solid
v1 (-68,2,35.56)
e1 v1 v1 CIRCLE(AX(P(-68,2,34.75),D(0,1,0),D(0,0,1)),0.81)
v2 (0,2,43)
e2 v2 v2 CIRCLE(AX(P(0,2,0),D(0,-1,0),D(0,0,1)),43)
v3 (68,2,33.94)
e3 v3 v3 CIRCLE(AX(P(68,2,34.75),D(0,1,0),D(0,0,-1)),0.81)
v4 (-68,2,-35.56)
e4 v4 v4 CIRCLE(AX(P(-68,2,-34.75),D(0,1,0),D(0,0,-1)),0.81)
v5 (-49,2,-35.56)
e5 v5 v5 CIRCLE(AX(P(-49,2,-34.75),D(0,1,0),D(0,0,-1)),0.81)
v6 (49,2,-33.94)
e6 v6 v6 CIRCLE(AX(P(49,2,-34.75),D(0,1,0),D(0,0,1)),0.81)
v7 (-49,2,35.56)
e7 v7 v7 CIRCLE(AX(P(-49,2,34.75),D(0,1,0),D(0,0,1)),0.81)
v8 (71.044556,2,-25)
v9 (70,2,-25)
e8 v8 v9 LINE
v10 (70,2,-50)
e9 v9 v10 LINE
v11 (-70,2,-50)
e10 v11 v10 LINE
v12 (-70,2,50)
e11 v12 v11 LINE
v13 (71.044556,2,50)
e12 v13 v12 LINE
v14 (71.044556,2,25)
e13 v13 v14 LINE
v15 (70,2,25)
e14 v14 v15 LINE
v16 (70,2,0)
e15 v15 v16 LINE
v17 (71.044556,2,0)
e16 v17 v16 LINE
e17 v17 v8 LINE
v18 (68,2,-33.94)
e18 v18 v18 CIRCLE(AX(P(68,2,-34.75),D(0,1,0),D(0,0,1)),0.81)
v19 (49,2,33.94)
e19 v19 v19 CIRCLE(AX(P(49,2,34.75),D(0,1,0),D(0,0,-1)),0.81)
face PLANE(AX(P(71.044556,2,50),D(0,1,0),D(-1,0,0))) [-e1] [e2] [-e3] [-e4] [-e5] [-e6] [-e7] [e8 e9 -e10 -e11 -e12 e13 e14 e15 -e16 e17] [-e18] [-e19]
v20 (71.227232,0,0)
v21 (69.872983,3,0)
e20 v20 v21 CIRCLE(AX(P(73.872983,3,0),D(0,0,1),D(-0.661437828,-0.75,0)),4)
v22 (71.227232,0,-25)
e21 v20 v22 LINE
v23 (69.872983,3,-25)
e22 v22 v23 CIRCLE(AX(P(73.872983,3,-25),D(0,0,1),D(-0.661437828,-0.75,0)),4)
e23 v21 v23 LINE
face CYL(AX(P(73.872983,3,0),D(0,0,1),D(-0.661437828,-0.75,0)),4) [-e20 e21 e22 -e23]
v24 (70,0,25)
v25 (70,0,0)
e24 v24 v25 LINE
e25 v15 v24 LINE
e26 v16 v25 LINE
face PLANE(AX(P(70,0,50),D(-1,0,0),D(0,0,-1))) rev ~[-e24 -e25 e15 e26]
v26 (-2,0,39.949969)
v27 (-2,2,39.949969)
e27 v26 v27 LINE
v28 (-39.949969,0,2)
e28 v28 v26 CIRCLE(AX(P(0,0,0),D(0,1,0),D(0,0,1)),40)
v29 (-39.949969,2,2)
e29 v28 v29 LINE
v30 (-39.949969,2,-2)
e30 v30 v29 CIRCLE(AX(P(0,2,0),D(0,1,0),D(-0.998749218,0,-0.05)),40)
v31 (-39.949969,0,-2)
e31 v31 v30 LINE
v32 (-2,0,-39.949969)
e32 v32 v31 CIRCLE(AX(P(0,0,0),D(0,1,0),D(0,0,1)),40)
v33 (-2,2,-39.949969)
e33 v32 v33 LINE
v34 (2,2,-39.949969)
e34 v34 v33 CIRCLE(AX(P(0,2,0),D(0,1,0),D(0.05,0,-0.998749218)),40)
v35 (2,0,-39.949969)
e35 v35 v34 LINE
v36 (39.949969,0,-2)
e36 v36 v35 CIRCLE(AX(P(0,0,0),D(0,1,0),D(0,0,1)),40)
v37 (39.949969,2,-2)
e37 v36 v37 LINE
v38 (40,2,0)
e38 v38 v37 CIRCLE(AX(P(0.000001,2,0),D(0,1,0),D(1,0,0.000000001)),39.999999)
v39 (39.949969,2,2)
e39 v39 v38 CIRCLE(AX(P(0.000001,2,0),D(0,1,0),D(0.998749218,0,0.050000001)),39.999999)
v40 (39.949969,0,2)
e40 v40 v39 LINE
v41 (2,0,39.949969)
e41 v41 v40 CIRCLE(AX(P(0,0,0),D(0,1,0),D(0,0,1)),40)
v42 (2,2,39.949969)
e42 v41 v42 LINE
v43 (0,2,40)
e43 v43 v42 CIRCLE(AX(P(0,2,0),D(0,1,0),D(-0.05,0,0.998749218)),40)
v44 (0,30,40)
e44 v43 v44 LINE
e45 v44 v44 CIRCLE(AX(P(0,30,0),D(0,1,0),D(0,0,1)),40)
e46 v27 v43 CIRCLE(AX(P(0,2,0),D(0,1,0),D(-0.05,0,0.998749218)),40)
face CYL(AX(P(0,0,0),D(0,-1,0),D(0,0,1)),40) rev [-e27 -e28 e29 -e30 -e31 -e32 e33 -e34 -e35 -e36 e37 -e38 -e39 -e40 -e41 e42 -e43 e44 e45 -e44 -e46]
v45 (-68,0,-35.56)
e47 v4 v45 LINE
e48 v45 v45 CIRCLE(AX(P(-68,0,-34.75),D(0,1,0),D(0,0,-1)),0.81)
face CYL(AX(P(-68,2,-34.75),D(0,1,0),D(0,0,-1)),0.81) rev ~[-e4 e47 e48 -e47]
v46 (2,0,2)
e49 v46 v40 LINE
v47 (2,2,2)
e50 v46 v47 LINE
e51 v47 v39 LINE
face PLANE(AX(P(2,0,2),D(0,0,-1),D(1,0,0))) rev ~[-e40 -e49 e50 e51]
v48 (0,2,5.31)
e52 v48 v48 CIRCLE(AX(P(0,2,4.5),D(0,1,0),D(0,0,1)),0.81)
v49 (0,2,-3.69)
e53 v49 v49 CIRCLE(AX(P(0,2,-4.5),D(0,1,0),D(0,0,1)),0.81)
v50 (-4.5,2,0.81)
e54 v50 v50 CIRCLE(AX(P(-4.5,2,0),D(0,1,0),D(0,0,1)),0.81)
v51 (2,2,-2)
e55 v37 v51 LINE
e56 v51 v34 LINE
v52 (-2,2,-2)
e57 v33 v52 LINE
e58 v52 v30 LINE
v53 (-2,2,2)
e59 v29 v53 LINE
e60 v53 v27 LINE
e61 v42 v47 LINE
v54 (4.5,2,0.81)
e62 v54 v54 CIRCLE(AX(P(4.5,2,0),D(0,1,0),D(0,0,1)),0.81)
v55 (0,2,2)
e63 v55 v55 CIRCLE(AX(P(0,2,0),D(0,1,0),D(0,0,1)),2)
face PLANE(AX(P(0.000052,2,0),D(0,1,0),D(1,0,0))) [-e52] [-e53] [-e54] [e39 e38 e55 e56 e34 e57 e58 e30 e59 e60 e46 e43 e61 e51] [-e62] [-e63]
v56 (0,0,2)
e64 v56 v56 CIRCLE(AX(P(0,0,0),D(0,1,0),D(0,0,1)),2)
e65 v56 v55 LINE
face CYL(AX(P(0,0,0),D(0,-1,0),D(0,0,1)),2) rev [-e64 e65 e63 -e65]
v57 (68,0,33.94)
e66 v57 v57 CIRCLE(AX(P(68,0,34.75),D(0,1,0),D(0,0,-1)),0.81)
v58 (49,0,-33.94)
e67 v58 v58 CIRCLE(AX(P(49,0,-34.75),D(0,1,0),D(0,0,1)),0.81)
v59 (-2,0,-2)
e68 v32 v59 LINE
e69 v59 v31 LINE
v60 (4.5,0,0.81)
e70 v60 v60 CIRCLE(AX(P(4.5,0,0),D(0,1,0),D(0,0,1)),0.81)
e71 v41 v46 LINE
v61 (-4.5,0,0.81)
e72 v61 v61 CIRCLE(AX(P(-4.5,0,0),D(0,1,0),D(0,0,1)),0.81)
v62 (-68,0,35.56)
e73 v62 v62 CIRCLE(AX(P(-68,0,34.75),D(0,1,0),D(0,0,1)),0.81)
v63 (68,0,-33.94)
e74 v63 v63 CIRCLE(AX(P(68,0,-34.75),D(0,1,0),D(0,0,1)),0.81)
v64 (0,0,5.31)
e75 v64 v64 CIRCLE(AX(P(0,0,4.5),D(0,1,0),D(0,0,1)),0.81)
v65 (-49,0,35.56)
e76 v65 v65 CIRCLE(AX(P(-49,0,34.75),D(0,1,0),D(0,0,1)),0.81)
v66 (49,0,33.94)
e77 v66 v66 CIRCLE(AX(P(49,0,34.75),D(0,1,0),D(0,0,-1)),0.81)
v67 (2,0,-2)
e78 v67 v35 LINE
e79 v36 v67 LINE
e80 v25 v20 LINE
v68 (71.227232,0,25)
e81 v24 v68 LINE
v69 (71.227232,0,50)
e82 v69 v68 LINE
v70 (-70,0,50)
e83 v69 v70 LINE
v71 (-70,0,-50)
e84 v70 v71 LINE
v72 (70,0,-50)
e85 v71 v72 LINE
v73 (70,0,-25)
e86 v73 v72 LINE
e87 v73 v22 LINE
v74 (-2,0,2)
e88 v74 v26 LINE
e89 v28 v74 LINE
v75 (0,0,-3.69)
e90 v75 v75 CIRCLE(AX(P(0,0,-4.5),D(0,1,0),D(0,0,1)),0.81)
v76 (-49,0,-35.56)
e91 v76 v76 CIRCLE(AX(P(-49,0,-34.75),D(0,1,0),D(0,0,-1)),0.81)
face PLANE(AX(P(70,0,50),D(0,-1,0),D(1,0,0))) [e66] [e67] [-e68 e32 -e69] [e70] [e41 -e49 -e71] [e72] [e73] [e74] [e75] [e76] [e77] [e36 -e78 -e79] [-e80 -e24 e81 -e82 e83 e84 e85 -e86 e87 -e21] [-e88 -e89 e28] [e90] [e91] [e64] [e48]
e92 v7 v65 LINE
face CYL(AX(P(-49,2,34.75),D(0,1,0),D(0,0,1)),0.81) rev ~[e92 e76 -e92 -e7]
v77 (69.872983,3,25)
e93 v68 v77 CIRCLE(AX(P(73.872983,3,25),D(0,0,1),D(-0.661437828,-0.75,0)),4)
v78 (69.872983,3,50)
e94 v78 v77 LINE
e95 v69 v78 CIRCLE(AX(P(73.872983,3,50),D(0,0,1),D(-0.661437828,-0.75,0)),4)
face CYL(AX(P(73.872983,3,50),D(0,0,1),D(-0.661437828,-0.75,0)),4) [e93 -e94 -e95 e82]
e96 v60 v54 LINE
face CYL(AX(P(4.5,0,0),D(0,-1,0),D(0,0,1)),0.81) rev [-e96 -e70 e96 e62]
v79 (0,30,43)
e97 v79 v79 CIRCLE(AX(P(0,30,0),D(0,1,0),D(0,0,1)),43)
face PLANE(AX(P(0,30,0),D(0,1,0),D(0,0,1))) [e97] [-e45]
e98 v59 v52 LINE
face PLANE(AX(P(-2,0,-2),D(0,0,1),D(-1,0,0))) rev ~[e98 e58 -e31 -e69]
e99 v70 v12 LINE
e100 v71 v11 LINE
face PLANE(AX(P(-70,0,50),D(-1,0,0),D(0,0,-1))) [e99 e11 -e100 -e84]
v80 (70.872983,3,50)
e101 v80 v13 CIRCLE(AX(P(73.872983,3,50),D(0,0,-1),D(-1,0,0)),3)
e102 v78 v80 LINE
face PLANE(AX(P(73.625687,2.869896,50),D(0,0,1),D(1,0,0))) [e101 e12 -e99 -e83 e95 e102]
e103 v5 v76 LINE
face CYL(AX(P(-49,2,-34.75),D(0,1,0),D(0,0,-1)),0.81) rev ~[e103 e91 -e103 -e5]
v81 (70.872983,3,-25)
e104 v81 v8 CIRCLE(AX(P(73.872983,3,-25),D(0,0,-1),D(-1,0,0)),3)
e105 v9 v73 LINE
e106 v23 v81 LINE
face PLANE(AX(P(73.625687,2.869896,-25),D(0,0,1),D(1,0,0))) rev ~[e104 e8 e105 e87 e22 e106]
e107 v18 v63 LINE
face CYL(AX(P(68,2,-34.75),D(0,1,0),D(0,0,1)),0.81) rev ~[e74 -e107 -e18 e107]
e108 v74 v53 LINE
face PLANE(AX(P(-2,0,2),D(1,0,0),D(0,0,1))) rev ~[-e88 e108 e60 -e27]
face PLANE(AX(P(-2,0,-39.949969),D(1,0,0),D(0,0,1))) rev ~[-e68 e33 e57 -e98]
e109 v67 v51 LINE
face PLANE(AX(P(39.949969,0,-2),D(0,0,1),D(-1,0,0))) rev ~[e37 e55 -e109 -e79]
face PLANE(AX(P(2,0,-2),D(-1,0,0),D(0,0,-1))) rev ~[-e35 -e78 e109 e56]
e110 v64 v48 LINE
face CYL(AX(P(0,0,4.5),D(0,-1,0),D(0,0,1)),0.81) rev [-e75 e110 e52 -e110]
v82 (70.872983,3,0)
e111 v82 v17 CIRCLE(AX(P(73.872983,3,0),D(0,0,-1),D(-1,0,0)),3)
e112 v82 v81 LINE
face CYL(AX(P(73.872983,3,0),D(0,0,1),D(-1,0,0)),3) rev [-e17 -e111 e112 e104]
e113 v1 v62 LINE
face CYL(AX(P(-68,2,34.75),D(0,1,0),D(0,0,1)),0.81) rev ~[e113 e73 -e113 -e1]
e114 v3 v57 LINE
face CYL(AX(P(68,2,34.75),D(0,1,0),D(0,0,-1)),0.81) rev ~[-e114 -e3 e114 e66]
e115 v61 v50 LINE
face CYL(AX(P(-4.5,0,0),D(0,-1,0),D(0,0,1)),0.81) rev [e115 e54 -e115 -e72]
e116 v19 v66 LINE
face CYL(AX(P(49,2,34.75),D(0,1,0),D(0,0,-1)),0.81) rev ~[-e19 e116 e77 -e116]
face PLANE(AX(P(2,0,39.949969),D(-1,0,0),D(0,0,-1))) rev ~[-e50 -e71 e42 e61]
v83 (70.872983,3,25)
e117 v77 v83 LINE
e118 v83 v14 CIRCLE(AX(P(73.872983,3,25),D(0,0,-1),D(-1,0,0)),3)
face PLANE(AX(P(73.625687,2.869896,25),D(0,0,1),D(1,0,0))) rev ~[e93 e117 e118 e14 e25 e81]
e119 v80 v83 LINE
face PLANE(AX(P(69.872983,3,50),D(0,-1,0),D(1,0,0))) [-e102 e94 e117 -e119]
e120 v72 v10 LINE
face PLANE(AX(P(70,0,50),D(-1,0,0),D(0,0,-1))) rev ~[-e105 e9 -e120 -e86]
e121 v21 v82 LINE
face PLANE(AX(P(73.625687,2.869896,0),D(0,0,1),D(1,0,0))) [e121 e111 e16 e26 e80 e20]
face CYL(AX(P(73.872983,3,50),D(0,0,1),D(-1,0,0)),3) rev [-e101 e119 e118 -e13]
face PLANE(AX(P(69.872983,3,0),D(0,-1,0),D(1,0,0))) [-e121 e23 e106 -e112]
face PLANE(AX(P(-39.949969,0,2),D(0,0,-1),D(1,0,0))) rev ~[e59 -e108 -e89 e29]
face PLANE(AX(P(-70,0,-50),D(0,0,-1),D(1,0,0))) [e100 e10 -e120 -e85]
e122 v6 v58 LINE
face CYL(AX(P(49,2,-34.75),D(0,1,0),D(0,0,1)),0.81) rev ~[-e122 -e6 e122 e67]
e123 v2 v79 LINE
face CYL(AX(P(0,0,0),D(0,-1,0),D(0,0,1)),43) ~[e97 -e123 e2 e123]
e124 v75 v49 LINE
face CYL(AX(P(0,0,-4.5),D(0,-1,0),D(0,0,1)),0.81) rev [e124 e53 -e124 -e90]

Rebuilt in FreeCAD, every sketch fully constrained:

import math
import FreeCAD as App
import Part
import Sketcher


def add_polygon(sketch, points):
    """Adds a closed chain of lines whose ends are joined by coincident constraints."""
    first, n = sketch.GeometryCount, len(points)
    for a, b in zip(points, points[1:] + points[:1]):
        sketch.addGeometry(Part.LineSegment(App.Vector(*a, 0), App.Vector(*b, 0)), False)
    for i in range(n):
        sketch.addConstraint(Sketcher.Constraint("Coincident", first + i, 2, first + (i + 1) % n, 1))

doc = App.newDocument("Part")
body = doc.addObject("PartDesign::Body", "Body")

sketch1 = doc.addObject("Sketcher::SketchObject", "Sketch")
body.addObject(sketch1)
sketch1.AttachmentSupport = (doc.XZ_Plane, [""])
sketch1.MapMode = "FlatFace"
sketch1.addGeometry(Part.Circle(App.Vector(0, 0, 0), App.Vector(0, 0, 1), 43), False)
sketch1.addGeometry(Part.Circle(App.Vector(0, 0, 0), App.Vector(0, 0, 1), 40), False)
sketch1.addConstraint(Sketcher.Constraint("Coincident", 0, 3, -1, 1))
sketch1.addConstraint(Sketcher.Constraint("Coincident", 1, 3, -1, 1))
sketch1.addConstraint(Sketcher.Constraint("Diameter", 0, 86.0))
sketch1.addConstraint(Sketcher.Constraint("Diameter", 1, 80.0))
pad1 = doc.addObject("PartDesign::Pad", "Pad")
body.addObject(pad1)
pad1.Profile = sketch1
pad1.Length = 30
pad1.Reversed = True

sketch2 = doc.addObject("Sketcher::SketchObject", "Sketch001")
body.addObject(sketch2)
sketch2.AttachmentSupport = (doc.XZ_Plane, [""])
sketch2.MapMode = "FlatFace"
sketch2.addGeometry(Part.LineSegment(App.Vector(-2, -39.9, 0), App.Vector(-2, -2, 0)), False)
sketch2.addGeometry(Part.LineSegment(App.Vector(-2, -2, 0), App.Vector(-39.9, -2, 0)), False)
sketch2.addGeometry(Part.ArcOfCircle(Part.Circle(App.Vector(0, 0, 0), App.Vector(0, 0, 1), 40), math.radians(177.13), math.radians(182.87)), False)
sketch2.addGeometry(Part.LineSegment(App.Vector(-39.9, 2, 0), App.Vector(-2, 2, 0)), False)
sketch2.addGeometry(Part.LineSegment(App.Vector(-2, 2, 0), App.Vector(-2, 39.9, 0)), False)
sketch2.addGeometry(Part.ArcOfCircle(Part.Circle(App.Vector(0, 0, 0), App.Vector(0, 0, 1), 40), math.radians(87.13), math.radians(92.87)), False)
sketch2.addGeometry(Part.LineSegment(App.Vector(2, 39.9, 0), App.Vector(2, 2, 0)), False)
sketch2.addGeometry(Part.LineSegment(App.Vector(2, 2, 0), App.Vector(39.9, 2, 0)), False)
sketch2.addGeometry(Part.ArcOfCircle(Part.Circle(App.Vector(0, 0, 0), App.Vector(0, 0, 1), 40), math.radians(0), math.radians(2.87)), False)
sketch2.addGeometry(Part.ArcOfCircle(Part.Circle(App.Vector(0, 0, 0), App.Vector(0, 0, 1), 40), math.radians(-2.87), math.radians(0)), False)
sketch2.addGeometry(Part.LineSegment(App.Vector(39.9, -2, 0), App.Vector(2, -2, 0)), False)
sketch2.addGeometry(Part.LineSegment(App.Vector(2, -2, 0), App.Vector(2, -39.9, 0)), False)
sketch2.addGeometry(Part.ArcOfCircle(Part.Circle(App.Vector(0, 0, 0), App.Vector(0, 0, 1), 40), math.radians(-92.87), math.radians(-87.13)), False)
sketch2.addGeometry(Part.Circle(App.Vector(0, 4.5, 0), App.Vector(0, 0, 1), 0.8), False)
sketch2.addGeometry(Part.Circle(App.Vector(-4.5, 0, 0), App.Vector(0, 0, 1), 0.8), False)
sketch2.addGeometry(Part.Circle(App.Vector(0, 0, 0), App.Vector(0, 0, 1), 2), False)
sketch2.addGeometry(Part.Circle(App.Vector(4.5, 0, 0), App.Vector(0, 0, 1), 0.8), False)
sketch2.addGeometry(Part.Circle(App.Vector(0, -4.5, 0), App.Vector(0, 0, 1), 0.8), False)
sketch2.addConstraint(Sketcher.Constraint("Coincident", 0, 2, 1, 1))
sketch2.addConstraint(Sketcher.Constraint("Coincident", 1, 2, 2, 2))
sketch2.addConstraint(Sketcher.Constraint("Coincident", 2, 1, 3, 1))
sketch2.addConstraint(Sketcher.Constraint("Coincident", 3, 2, 4, 1))
sketch2.addConstraint(Sketcher.Constraint("Coincident", 4, 2, 5, 2))
sketch2.addConstraint(Sketcher.Constraint("Coincident", 5, 1, 6, 1))
sketch2.addConstraint(Sketcher.Constraint("Coincident", 6, 2, 7, 1))
sketch2.addConstraint(Sketcher.Constraint("Coincident", 7, 2, 8, 2))
sketch2.addConstraint(Sketcher.Constraint("Tangent", 8, 1, 9, 2))
sketch2.addConstraint(Sketcher.Constraint("Coincident", 9, 1, 10, 1))
sketch2.addConstraint(Sketcher.Constraint("Coincident", 10, 2, 11, 1))
sketch2.addConstraint(Sketcher.Constraint("Coincident", 11, 2, 12, 2))
sketch2.addConstraint(Sketcher.Constraint("Coincident", 12, 1, 0, 1))
sketch2.addConstraint(Sketcher.Constraint("Vertical", 0))
sketch2.addConstraint(Sketcher.Constraint("Horizontal", 1))
sketch2.addConstraint(Sketcher.Constraint("Horizontal", 3))
sketch2.addConstraint(Sketcher.Constraint("Vertical", 4))
sketch2.addConstraint(Sketcher.Constraint("Vertical", 6))
sketch2.addConstraint(Sketcher.Constraint("Horizontal", 7))
sketch2.addConstraint(Sketcher.Constraint("Horizontal", 10))
sketch2.addConstraint(Sketcher.Constraint("Vertical", 11))
sketch2.addConstraint(Sketcher.Constraint("Coincident", 2, 3, -1, 1))
sketch2.addConstraint(Sketcher.Constraint("Coincident", 5, 3, -1, 1))
sketch2.addConstraint(Sketcher.Constraint("Coincident", 8, 3, -1, 1))
sketch2.addConstraint(Sketcher.Constraint("Coincident", 12, 3, -1, 1))
sketch2.addConstraint(Sketcher.Constraint("Coincident", 15, 3, -1, 1))
sketch2.addConstraint(Sketcher.Constraint("Equal", 2, 5))
sketch2.addConstraint(Sketcher.Constraint("Equal", 5, 8))
sketch2.addConstraint(Sketcher.Constraint("Equal", 8, 9))
sketch2.addConstraint(Sketcher.Constraint("Equal", 9, 12))
sketch2.addConstraint(Sketcher.Constraint("Equal", 13, 14))
sketch2.addConstraint(Sketcher.Constraint("Equal", 14, 16))
sketch2.addConstraint(Sketcher.Constraint("Equal", 16, 17))
sketch2.addConstraint(Sketcher.Constraint("Symmetric", 14, 3, 16, 3, -1, 1))
sketch2.addConstraint(Sketcher.Constraint("Symmetric", 13, 3, 17, 3, -1, 1))
sketch2.addConstraint(Sketcher.Constraint("Symmetric", 0, 2, 6, 2, -1, 1))
sketch2.addConstraint(Sketcher.Constraint("Symmetric", 3, 2, 10, 2, -1, 1))
sketch2.addConstraint(Sketcher.Constraint("Symmetric", 3, 2, 6, 2, -2))
sketch2.addConstraint(Sketcher.Constraint("PointOnObject", 13, 3, -2))
sketch2.addConstraint(Sketcher.Constraint("PointOnObject", 14, 3, -1))
sketch2.addConstraint(Sketcher.Constraint("PointOnObject", 8, 1, -1))
sketch2.addConstraint(Sketcher.Constraint("Equal", 10, 0))
sketch2.addConstraint(Sketcher.Constraint("Diameter", 15, 4.0))
sketch2.addConstraint(Sketcher.Constraint("Radius", 2, 40.0))
sketch2.addConstraint(Sketcher.Constraint("Diameter", 13, 1.62))
sketch2.addConstraint(Sketcher.Constraint("DistanceX", 0, 2, -1, 1, 2.0))
sketch2.addConstraint(Sketcher.Constraint("DistanceY", -1, 1, 13, 3, 4.5))
sketch2.addConstraint(Sketcher.Constraint("DistanceX", 14, 3, -1, 1, 4.5))
pad2 = doc.addObject("PartDesign::Pad", "Pad001")
body.addObject(pad2)
pad2.Profile = sketch2
pad2.Length = 2
pad2.Reversed = True

sketch3 = doc.addObject("Sketcher::SketchObject", "Sketch002")
body.addObject(sketch3)
sketch3.AttachmentSupport = (doc.XZ_Plane, [""])
sketch3.MapMode = "FlatFace"
add_polygon(sketch3, [(-70, -50), (-70, 50), (70, 50), (70, -50)])
sketch3.addGeometry(Part.Circle(App.Vector(0, 0, 0), App.Vector(0, 0, 1), 43), False)
sketch3.addConstraint(Sketcher.Constraint("Vertical", 0))
sketch3.addConstraint(Sketcher.Constraint("Horizontal", 1))
sketch3.addConstraint(Sketcher.Constraint("Vertical", 2))
sketch3.addConstraint(Sketcher.Constraint("Horizontal", 3))
sketch3.addConstraint(Sketcher.Constraint("Coincident", 4, 3, -1, 1))
sketch3.addConstraint(Sketcher.Constraint("Symmetric", 0, 2, 2, 2, -1, 1))
sketch3.addConstraint(Sketcher.Constraint("Diameter", 4, 86.0))
sketch3.addConstraint(Sketcher.Constraint("DistanceX", 1, 1, 1, 2, 140.0))
sketch3.addConstraint(Sketcher.Constraint("DistanceY", 0, 1, 0, 2, 100.0))
pad3 = doc.addObject("PartDesign::Pad", "Pad002")
body.addObject(pad3)
pad3.Profile = sketch3
pad3.Length = 2
pad3.Reversed = True

sketch4 = doc.addObject("Sketcher::SketchObject", "Sketch003")
body.addObject(sketch4)
sketch4.AttachmentSupport = (doc.XZ_Plane, [""])
sketch4.MapMode = "FlatFace"
sketch4.AttachmentOffset = App.Placement(App.Vector(0, 0, -2), App.Rotation())
sketch4.addGeometry(Part.Circle(App.Vector(-68, 34.8, 0), App.Vector(0, 0, 1), 0.8), False)
sketch4.addGeometry(Part.Circle(App.Vector(-49, 34.8, 0), App.Vector(0, 0, 1), 0.8), False)
sketch4.addGeometry(Part.Circle(App.Vector(-49, -34.8, 0), App.Vector(0, 0, 1), 0.8), False)
sketch4.addGeometry(Part.Circle(App.Vector(-68, -34.8, 0), App.Vector(0, 0, 1), 0.8), False)
sketch4.addGeometry(Part.Circle(App.Vector(68, -34.8, 0), App.Vector(0, 0, 1), 0.8), False)
sketch4.addGeometry(Part.Circle(App.Vector(49, -34.8, 0), App.Vector(0, 0, 1), 0.8), False)
sketch4.addGeometry(Part.Circle(App.Vector(49, 34.8, 0), App.Vector(0, 0, 1), 0.8), False)
sketch4.addGeometry(Part.Circle(App.Vector(68, 34.8, 0), App.Vector(0, 0, 1), 0.8), False)
sketch4.addConstraint(Sketcher.Constraint("Equal", 0, 1))
sketch4.addConstraint(Sketcher.Constraint("Equal", 1, 2))
sketch4.addConstraint(Sketcher.Constraint("Equal", 2, 3))
sketch4.addConstraint(Sketcher.Constraint("Equal", 3, 4))
sketch4.addConstraint(Sketcher.Constraint("Equal", 4, 5))
sketch4.addConstraint(Sketcher.Constraint("Equal", 5, 6))
sketch4.addConstraint(Sketcher.Constraint("Equal", 6, 7))
sketch4.addConstraint(Sketcher.Constraint("Symmetric", 0, 3, 4, 3, -1, 1))
sketch4.addConstraint(Sketcher.Constraint("Symmetric", 1, 3, 5, 3, -1, 1))
sketch4.addConstraint(Sketcher.Constraint("Symmetric", 2, 3, 6, 3, -1, 1))
sketch4.addConstraint(Sketcher.Constraint("Symmetric", 3, 3, 7, 3, -1, 1))
sketch4.addConstraint(Sketcher.Constraint("Symmetric", 3, 3, 4, 3, -2))
sketch4.addConstraint(Sketcher.Constraint("Symmetric", 2, 3, 5, 3, -2))
sketch4.addConstraint(Sketcher.Constraint("Horizontal", 0, 3, 1, 3))
sketch4.addConstraint(Sketcher.Constraint("Diameter", 0, 1.62))
sketch4.addConstraint(Sketcher.Constraint("DistanceX", 0, 3, -1, 1, 68.0))
sketch4.addConstraint(Sketcher.Constraint("DistanceX", 1, 3, -1, 1, 49.0))
sketch4.addConstraint(Sketcher.Constraint("DistanceY", 2, 3, 1, 3, 69.5))
pocket1 = doc.addObject("PartDesign::Pocket", "Pocket")
body.addObject(pocket1)
pocket1.Profile = sketch4
pocket1.Length = 2
pocket1.Reversed = True

sketch5 = doc.addObject("Sketcher::SketchObject", "Sketch004")
body.addObject(sketch5)
sketch5.AttachmentSupport = (doc.XY_Plane, [""])
sketch5.MapMode = "FlatFace"
sketch5.AttachmentOffset = App.Placement(App.Vector(0, 0, 50), App.Rotation())
sketch5.addGeometry(Part.LineSegment(App.Vector(70, 2, 0), App.Vector(70, 0, 0)), False)
sketch5.addGeometry(Part.LineSegment(App.Vector(70, 0, 0), App.Vector(71.2, 0, 0)), False)
sketch5.addGeometry(Part.ArcOfCircle(Part.Circle(App.Vector(73.9, 3, 0), App.Vector(0, 0, 1), 4), math.radians(-131), math.radians(180)), False)
sketch5.addGeometry(Part.LineSegment(App.Vector(69.9, 3, 0), App.Vector(70.9, 3, 0)), False)
sketch5.addGeometry(Part.ArcOfCircle(Part.Circle(App.Vector(73.9, 3, 0), App.Vector(0, 0, 1), 3), math.radians(-161), math.radians(180)), False)
sketch5.addGeometry(Part.LineSegment(App.Vector(71, 2, 0), App.Vector(70, 2, 0)), False)
sketch5.addConstraint(Sketcher.Constraint("Coincident", 0, 2, 1, 1))
sketch5.addConstraint(Sketcher.Constraint("Coincident", 1, 2, 2, 1))
sketch5.addConstraint(Sketcher.Constraint("Coincident", 2, 2, 3, 1))
sketch5.addConstraint(Sketcher.Constraint("Coincident", 3, 2, 4, 2))
sketch5.addConstraint(Sketcher.Constraint("Coincident", 4, 1, 5, 1))
sketch5.addConstraint(Sketcher.Constraint("Coincident", 5, 2, 0, 1))
sketch5.addConstraint(Sketcher.Constraint("Vertical", 0))
sketch5.addConstraint(Sketcher.Constraint("Horizontal", 1))
sketch5.addConstraint(Sketcher.Constraint("Horizontal", 3))
sketch5.addConstraint(Sketcher.Constraint("Horizontal", 5))
sketch5.addConstraint(Sketcher.Constraint("Coincident", 4, 3, 2, 3))
sketch5.addConstraint(Sketcher.Constraint("PointOnObject", 0, 2, -1))
sketch5.addConstraint(Sketcher.Constraint("Horizontal", 4, 3, 2, 2))
sketch5.addConstraint(Sketcher.Constraint("Radius", 2, 4.0))
sketch5.addConstraint(Sketcher.Constraint("Radius", 4, 3.0))
sketch5.addConstraint(Sketcher.Constraint("DistanceY", 0, 2, 0, 1, 2.0))
sketch5.addConstraint(Sketcher.Constraint("DistanceY", -1, 1, 2, 3, 3.0))
sketch5.addConstraint(Sketcher.Constraint("DistanceX", -1, 1, 0, 2, 70.0))
sketch5.addConstraint(Sketcher.Constraint("DistanceX", 1, 1, 1, 2, 1.227232))
pad4 = doc.addObject("PartDesign::Pad", "Pad003")
body.addObject(pad4)
pad4.Profile = sketch5
pad4.Length = 25
pad4.Reversed = True
doc.recompute()

linearpattern = doc.addObject("PartDesign::LinearPattern", "LinearPattern")
body.addObject(linearpattern)
linearpattern.Originals = [pad4]
linearpattern.Direction = (doc.Z_Axis, [""])
linearpattern.Mode = "offset"
linearpattern.Offset = 50
linearpattern.Occurrences = 2
linearpattern.Reversed = True
body.Tip = linearpattern

doc.recompute()
